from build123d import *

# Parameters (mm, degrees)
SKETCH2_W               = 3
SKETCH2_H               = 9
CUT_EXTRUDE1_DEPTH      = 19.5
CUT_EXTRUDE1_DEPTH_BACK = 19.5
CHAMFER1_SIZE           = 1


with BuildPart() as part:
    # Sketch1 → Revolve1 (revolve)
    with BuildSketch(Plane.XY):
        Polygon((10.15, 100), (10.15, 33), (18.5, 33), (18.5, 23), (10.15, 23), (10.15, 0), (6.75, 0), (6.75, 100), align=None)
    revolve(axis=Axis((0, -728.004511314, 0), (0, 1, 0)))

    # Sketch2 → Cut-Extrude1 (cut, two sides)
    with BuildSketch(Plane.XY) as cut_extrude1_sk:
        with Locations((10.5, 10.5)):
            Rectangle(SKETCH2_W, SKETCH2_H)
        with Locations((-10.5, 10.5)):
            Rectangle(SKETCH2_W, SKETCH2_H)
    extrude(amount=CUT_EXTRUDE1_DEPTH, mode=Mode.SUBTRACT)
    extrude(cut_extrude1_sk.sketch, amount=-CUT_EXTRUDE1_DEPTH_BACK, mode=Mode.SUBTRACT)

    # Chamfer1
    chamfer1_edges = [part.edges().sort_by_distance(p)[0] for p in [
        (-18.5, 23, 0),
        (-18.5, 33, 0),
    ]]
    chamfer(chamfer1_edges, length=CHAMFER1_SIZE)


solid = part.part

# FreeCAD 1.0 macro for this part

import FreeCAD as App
import Part
import Sketcher

V = App.Vector


def edges_at(feature, points):
    """Names of the edges that pass closest to the given points."""
    edges = feature.Shape.Edges
    near = lambda p: min(range(len(edges)), key=lambda i: edges[i].distToShape(Part.Vertex(*p))[0])
    return sorted({f"Edge{near(p) + 1}" for p in points})

doc = App.newDocument("Part")
body = doc.addObject("PartDesign::Body", "Body")

sketch1 = body.newObject("Sketcher::SketchObject", "Sketch")
sketch1.AttachmentSupport = (doc.getObject("XY_Plane"), [""])
sketch1.MapMode = "FlatFace"
sketch1.addGeometry(Part.LineSegment(V(10.2, 33, 0), V(10.2, 100, 0)), False)
sketch1.addGeometry(Part.LineSegment(V(10.2, 100, 0), V(6.8, 100, 0)), False)
sketch1.addGeometry(Part.LineSegment(V(6.8, 100, 0), V(6.8, 0, 0)), False)
sketch1.addGeometry(Part.LineSegment(V(6.8, 0, 0), V(10.2, 0, 0)), False)
sketch1.addGeometry(Part.LineSegment(V(10.2, 0, 0), V(10.2, 23, 0)), False)
sketch1.addGeometry(Part.LineSegment(V(10.2, 23, 0), V(18.5, 23, 0)), False)
sketch1.addGeometry(Part.LineSegment(V(18.5, 23, 0), V(18.5, 33, 0)), False)
sketch1.addGeometry(Part.LineSegment(V(18.5, 33, 0), V(10.2, 33, 0)), False)
sketch1.addConstraint(Sketcher.Constraint("Coincident", 0, 2, 1, 1))
sketch1.addConstraint(Sketcher.Constraint("Coincident", 1, 2, 2, 1))
sketch1.addConstraint(Sketcher.Constraint("Coincident", 2, 2, 3, 1))
sketch1.addConstraint(Sketcher.Constraint("Coincident", 3, 2, 4, 1))
sketch1.addConstraint(Sketcher.Constraint("Coincident", 4, 2, 5, 1))
sketch1.addConstraint(Sketcher.Constraint("Coincident", 5, 2, 6, 1))
sketch1.addConstraint(Sketcher.Constraint("Coincident", 6, 2, 7, 1))
sketch1.addConstraint(Sketcher.Constraint("Coincident", 7, 2, 0, 1))
sketch1.addConstraint(Sketcher.Constraint("Vertical", 0))
sketch1.addConstraint(Sketcher.Constraint("Horizontal", 1))
sketch1.addConstraint(Sketcher.Constraint("Vertical", 2))
sketch1.addConstraint(Sketcher.Constraint("Horizontal", 3))
sketch1.addConstraint(Sketcher.Constraint("Vertical", 4))
sketch1.addConstraint(Sketcher.Constraint("Horizontal", 5))
sketch1.addConstraint(Sketcher.Constraint("Vertical", 6))
sketch1.addConstraint(Sketcher.Constraint("Horizontal", 7))
sketch1.addConstraint(Sketcher.Constraint("PointOnObject", 2, 2, -1))
sketch1.addConstraint(Sketcher.Constraint("Vertical", 0, 2, 3, 2))
sketch1.addConstraint(Sketcher.Constraint("DistanceY", 0, 1, 0, 2, 67.0))
sketch1.addConstraint(Sketcher.Constraint("DistanceY", 2, 2, 2, 1, 100.0))
sketch1.addConstraint(Sketcher.Constraint("DistanceY", 4, 1, 4, 2, 23.0))
sketch1.addConstraint(Sketcher.Constraint("DistanceX", 1, 2, 1, 1, 3.4))
sketch1.addConstraint(Sketcher.Constraint("DistanceX", 5, 1, 5, 2, 8.35))
sketch1.addConstraint(Sketcher.Constraint("DistanceX", -1, 1, 5, 2, 18.5))
revolution = body.newObject("PartDesign::Revolution", "Revolution")
revolution.Profile = sketch1
revolution.ReferenceAxis = (sketch1, ["V_Axis"])
revolution.Angle = 360

sketch2 = body.newObject("Sketcher::SketchObject", "Sketch001")
sketch2.AttachmentSupport = (doc.getObject("XY_Plane"), [""])
sketch2.MapMode = "FlatFace"
sketch2.addGeometry(Part.LineSegment(V(9, 15, 0), V(9, 6, 0)), False)
sketch2.addGeometry(Part.LineSegment(V(9, 6, 0), V(12, 6, 0)), False)
sketch2.addGeometry(Part.LineSegment(V(12, 6, 0), V(12, 15, 0)), False)
sketch2.addGeometry(Part.LineSegment(V(12, 15, 0), V(9, 15, 0)), False)
sketch2.addGeometry(Part.LineSegment(V(-12, 15, 0), V(-12, 6, 0)), False)
sketch2.addGeometry(Part.LineSegment(V(-12, 6, 0), V(-9, 6, 0)), False)
sketch2.addGeometry(Part.LineSegment(V(-9, 6, 0), V(-9, 15, 0)), False)
sketch2.addGeometry(Part.LineSegment(V(-9, 15, 0), V(-12, 15, 0)), False)
sketch2.addConstraint(Sketcher.Constraint("Coincident", 0, 2, 1, 1))
sketch2.addConstraint(Sketcher.Constraint("Coincident", 1, 2, 2, 1))
sketch2.addConstraint(Sketcher.Constraint("Coincident", 2, 2, 3, 1))
sketch2.addConstraint(Sketcher.Constraint("Coincident", 3, 2, 0, 1))
sketch2.addConstraint(Sketcher.Constraint("Coincident", 4, 2, 5, 1))
sketch2.addConstraint(Sketcher.Constraint("Coincident", 5, 2, 6, 1))
sketch2.addConstraint(Sketcher.Constraint("Coincident", 6, 2, 7, 1))
sketch2.addConstraint(Sketcher.Constraint("Coincident", 7, 2, 4, 1))
sketch2.addConstraint(Sketcher.Constraint("Vertical", 0))
sketch2.addConstraint(Sketcher.Constraint("Horizontal", 1))
sketch2.addConstraint(Sketcher.Constraint("Vertical", 2))
sketch2.addConstraint(Sketcher.Constraint("Horizontal", 3))
sketch2.addConstraint(Sketcher.Constraint("Vertical", 4))
sketch2.addConstraint(Sketcher.Constraint("Horizontal", 5))
sketch2.addConstraint(Sketcher.Constraint("Vertical", 6))
sketch2.addConstraint(Sketcher.Constraint("Horizontal", 7))
sketch2.addConstraint(Sketcher.Constraint("Symmetric", 1, 2, 4, 2, -2))
sketch2.addConstraint(Sketcher.Constraint("Symmetric", 3, 2, 6, 2, -2))
sketch2.addConstraint(Sketcher.Constraint("DistanceX", 1, 1, 1, 2, 3.0))
sketch2.addConstraint(Sketcher.Constraint("DistanceY", 0, 2, 0, 1, 9.0))
sketch2.addConstraint(Sketcher.Constraint("DistanceX", -1, 1, 0, 2, 9.0))
sketch2.addConstraint(Sketcher.Constraint("DistanceY", -1, 1, 0, 2, 6.0))
pocket1 = body.newObject("PartDesign::Pocket", "Pocket")
pocket1.Profile = sketch2
pocket1.Type = "ThroughAll"
pocket1.Midplane = True
doc.recompute()

chamfer = body.newObject("PartDesign::Chamfer", "Chamfer")
chamfer.Base = (pocket1, edges_at(pocket1, [(-18.5, 23, 0), (-18.5, 33, 0)]))
chamfer.Size = 1

doc.recompute()
